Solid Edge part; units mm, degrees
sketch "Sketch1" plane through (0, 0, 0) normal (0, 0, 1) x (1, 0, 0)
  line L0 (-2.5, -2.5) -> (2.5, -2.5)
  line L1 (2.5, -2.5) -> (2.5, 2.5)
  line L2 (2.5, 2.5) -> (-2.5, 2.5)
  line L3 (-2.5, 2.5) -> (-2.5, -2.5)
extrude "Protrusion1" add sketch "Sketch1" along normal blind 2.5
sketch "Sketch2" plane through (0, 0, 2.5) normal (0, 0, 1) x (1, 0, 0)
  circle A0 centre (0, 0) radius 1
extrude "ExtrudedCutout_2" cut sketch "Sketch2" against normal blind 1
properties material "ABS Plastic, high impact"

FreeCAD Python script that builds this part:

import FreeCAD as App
import Part
import Sketcher

V = App.Vector
Q = App.Units.Quantity


def add_polygon(sketch, points):
    """Adds a closed chain of lines whose ends are joined by coincident constraints."""
    first, n = sketch.GeometryCount, len(points)
    for a, b in zip(points, points[1:] + points[:1]):
        sketch.addGeometry(Part.LineSegment(App.Vector(*a, 0), App.Vector(*b, 0)), False)
    for i in range(n):
        sketch.addConstraint(Sketcher.Constraint("Coincident", first + i, 2, first + (i + 1) % n, 1))

doc = App.newDocument("Part")
body = doc.addObject("PartDesign::Body", "Body")

# Sketch on XY plane
sketch1 = doc.addObject("Sketcher::SketchObject", "Sketch")
body.addObject(sketch1)
sketch1.AttachmentSupport = (doc.XY_Plane, [""])
sketch1.MapMode = "FlatFace"
add_polygon(sketch1, [(-2, 2), (-2, -2), (2, -2), (2, 2)])  # lines 0-3
sketch1.addConstraint([
    Sketcher.Constraint("Vertical", 0),
    Sketcher.Constraint("Horizontal", 1),
    Sketcher.Constraint("Vertical", 2),
    Sketcher.Constraint("Horizontal", 3),
    Sketcher.Constraint("Symmetric", 0, 2, 2, 2, -1, 1),
    Sketcher.Constraint("Equal", 3, 0),
    Sketcher.Constraint("DistanceX", 1, 1, 1, 2, Q("5 mm")),
])
pad1 = doc.addObject("PartDesign::Pad", "Pad")
body.addObject(pad1)
pad1.Profile = sketch1
pad1.Length = 2.5

# Sketch on XY plane
sketch2 = doc.addObject("Sketcher::SketchObject", "Sketch001")
body.addObject(sketch2)
sketch2.AttachmentSupport = (doc.XY_Plane, [""])
sketch2.MapMode = "FlatFace"
sketch2.AttachmentOffset = App.Placement(V(0, 0, 2.5), App.Rotation())
sketch2.addGeometry(Part.Circle(V(0, 0, 0), V(0, 0, 1), 1), False)
sketch2.addConstraint([
    Sketcher.Constraint("Coincident", 0, 3, -1, 1),
    Sketcher.Constraint("Diameter", 0, Q("2 mm")),
])
pocket1 = doc.addObject("PartDesign::Pocket", "Pocket")
body.addObject(pocket1)
pocket1.Profile = sketch2
pocket1.Length = 1

doc.recompute()
